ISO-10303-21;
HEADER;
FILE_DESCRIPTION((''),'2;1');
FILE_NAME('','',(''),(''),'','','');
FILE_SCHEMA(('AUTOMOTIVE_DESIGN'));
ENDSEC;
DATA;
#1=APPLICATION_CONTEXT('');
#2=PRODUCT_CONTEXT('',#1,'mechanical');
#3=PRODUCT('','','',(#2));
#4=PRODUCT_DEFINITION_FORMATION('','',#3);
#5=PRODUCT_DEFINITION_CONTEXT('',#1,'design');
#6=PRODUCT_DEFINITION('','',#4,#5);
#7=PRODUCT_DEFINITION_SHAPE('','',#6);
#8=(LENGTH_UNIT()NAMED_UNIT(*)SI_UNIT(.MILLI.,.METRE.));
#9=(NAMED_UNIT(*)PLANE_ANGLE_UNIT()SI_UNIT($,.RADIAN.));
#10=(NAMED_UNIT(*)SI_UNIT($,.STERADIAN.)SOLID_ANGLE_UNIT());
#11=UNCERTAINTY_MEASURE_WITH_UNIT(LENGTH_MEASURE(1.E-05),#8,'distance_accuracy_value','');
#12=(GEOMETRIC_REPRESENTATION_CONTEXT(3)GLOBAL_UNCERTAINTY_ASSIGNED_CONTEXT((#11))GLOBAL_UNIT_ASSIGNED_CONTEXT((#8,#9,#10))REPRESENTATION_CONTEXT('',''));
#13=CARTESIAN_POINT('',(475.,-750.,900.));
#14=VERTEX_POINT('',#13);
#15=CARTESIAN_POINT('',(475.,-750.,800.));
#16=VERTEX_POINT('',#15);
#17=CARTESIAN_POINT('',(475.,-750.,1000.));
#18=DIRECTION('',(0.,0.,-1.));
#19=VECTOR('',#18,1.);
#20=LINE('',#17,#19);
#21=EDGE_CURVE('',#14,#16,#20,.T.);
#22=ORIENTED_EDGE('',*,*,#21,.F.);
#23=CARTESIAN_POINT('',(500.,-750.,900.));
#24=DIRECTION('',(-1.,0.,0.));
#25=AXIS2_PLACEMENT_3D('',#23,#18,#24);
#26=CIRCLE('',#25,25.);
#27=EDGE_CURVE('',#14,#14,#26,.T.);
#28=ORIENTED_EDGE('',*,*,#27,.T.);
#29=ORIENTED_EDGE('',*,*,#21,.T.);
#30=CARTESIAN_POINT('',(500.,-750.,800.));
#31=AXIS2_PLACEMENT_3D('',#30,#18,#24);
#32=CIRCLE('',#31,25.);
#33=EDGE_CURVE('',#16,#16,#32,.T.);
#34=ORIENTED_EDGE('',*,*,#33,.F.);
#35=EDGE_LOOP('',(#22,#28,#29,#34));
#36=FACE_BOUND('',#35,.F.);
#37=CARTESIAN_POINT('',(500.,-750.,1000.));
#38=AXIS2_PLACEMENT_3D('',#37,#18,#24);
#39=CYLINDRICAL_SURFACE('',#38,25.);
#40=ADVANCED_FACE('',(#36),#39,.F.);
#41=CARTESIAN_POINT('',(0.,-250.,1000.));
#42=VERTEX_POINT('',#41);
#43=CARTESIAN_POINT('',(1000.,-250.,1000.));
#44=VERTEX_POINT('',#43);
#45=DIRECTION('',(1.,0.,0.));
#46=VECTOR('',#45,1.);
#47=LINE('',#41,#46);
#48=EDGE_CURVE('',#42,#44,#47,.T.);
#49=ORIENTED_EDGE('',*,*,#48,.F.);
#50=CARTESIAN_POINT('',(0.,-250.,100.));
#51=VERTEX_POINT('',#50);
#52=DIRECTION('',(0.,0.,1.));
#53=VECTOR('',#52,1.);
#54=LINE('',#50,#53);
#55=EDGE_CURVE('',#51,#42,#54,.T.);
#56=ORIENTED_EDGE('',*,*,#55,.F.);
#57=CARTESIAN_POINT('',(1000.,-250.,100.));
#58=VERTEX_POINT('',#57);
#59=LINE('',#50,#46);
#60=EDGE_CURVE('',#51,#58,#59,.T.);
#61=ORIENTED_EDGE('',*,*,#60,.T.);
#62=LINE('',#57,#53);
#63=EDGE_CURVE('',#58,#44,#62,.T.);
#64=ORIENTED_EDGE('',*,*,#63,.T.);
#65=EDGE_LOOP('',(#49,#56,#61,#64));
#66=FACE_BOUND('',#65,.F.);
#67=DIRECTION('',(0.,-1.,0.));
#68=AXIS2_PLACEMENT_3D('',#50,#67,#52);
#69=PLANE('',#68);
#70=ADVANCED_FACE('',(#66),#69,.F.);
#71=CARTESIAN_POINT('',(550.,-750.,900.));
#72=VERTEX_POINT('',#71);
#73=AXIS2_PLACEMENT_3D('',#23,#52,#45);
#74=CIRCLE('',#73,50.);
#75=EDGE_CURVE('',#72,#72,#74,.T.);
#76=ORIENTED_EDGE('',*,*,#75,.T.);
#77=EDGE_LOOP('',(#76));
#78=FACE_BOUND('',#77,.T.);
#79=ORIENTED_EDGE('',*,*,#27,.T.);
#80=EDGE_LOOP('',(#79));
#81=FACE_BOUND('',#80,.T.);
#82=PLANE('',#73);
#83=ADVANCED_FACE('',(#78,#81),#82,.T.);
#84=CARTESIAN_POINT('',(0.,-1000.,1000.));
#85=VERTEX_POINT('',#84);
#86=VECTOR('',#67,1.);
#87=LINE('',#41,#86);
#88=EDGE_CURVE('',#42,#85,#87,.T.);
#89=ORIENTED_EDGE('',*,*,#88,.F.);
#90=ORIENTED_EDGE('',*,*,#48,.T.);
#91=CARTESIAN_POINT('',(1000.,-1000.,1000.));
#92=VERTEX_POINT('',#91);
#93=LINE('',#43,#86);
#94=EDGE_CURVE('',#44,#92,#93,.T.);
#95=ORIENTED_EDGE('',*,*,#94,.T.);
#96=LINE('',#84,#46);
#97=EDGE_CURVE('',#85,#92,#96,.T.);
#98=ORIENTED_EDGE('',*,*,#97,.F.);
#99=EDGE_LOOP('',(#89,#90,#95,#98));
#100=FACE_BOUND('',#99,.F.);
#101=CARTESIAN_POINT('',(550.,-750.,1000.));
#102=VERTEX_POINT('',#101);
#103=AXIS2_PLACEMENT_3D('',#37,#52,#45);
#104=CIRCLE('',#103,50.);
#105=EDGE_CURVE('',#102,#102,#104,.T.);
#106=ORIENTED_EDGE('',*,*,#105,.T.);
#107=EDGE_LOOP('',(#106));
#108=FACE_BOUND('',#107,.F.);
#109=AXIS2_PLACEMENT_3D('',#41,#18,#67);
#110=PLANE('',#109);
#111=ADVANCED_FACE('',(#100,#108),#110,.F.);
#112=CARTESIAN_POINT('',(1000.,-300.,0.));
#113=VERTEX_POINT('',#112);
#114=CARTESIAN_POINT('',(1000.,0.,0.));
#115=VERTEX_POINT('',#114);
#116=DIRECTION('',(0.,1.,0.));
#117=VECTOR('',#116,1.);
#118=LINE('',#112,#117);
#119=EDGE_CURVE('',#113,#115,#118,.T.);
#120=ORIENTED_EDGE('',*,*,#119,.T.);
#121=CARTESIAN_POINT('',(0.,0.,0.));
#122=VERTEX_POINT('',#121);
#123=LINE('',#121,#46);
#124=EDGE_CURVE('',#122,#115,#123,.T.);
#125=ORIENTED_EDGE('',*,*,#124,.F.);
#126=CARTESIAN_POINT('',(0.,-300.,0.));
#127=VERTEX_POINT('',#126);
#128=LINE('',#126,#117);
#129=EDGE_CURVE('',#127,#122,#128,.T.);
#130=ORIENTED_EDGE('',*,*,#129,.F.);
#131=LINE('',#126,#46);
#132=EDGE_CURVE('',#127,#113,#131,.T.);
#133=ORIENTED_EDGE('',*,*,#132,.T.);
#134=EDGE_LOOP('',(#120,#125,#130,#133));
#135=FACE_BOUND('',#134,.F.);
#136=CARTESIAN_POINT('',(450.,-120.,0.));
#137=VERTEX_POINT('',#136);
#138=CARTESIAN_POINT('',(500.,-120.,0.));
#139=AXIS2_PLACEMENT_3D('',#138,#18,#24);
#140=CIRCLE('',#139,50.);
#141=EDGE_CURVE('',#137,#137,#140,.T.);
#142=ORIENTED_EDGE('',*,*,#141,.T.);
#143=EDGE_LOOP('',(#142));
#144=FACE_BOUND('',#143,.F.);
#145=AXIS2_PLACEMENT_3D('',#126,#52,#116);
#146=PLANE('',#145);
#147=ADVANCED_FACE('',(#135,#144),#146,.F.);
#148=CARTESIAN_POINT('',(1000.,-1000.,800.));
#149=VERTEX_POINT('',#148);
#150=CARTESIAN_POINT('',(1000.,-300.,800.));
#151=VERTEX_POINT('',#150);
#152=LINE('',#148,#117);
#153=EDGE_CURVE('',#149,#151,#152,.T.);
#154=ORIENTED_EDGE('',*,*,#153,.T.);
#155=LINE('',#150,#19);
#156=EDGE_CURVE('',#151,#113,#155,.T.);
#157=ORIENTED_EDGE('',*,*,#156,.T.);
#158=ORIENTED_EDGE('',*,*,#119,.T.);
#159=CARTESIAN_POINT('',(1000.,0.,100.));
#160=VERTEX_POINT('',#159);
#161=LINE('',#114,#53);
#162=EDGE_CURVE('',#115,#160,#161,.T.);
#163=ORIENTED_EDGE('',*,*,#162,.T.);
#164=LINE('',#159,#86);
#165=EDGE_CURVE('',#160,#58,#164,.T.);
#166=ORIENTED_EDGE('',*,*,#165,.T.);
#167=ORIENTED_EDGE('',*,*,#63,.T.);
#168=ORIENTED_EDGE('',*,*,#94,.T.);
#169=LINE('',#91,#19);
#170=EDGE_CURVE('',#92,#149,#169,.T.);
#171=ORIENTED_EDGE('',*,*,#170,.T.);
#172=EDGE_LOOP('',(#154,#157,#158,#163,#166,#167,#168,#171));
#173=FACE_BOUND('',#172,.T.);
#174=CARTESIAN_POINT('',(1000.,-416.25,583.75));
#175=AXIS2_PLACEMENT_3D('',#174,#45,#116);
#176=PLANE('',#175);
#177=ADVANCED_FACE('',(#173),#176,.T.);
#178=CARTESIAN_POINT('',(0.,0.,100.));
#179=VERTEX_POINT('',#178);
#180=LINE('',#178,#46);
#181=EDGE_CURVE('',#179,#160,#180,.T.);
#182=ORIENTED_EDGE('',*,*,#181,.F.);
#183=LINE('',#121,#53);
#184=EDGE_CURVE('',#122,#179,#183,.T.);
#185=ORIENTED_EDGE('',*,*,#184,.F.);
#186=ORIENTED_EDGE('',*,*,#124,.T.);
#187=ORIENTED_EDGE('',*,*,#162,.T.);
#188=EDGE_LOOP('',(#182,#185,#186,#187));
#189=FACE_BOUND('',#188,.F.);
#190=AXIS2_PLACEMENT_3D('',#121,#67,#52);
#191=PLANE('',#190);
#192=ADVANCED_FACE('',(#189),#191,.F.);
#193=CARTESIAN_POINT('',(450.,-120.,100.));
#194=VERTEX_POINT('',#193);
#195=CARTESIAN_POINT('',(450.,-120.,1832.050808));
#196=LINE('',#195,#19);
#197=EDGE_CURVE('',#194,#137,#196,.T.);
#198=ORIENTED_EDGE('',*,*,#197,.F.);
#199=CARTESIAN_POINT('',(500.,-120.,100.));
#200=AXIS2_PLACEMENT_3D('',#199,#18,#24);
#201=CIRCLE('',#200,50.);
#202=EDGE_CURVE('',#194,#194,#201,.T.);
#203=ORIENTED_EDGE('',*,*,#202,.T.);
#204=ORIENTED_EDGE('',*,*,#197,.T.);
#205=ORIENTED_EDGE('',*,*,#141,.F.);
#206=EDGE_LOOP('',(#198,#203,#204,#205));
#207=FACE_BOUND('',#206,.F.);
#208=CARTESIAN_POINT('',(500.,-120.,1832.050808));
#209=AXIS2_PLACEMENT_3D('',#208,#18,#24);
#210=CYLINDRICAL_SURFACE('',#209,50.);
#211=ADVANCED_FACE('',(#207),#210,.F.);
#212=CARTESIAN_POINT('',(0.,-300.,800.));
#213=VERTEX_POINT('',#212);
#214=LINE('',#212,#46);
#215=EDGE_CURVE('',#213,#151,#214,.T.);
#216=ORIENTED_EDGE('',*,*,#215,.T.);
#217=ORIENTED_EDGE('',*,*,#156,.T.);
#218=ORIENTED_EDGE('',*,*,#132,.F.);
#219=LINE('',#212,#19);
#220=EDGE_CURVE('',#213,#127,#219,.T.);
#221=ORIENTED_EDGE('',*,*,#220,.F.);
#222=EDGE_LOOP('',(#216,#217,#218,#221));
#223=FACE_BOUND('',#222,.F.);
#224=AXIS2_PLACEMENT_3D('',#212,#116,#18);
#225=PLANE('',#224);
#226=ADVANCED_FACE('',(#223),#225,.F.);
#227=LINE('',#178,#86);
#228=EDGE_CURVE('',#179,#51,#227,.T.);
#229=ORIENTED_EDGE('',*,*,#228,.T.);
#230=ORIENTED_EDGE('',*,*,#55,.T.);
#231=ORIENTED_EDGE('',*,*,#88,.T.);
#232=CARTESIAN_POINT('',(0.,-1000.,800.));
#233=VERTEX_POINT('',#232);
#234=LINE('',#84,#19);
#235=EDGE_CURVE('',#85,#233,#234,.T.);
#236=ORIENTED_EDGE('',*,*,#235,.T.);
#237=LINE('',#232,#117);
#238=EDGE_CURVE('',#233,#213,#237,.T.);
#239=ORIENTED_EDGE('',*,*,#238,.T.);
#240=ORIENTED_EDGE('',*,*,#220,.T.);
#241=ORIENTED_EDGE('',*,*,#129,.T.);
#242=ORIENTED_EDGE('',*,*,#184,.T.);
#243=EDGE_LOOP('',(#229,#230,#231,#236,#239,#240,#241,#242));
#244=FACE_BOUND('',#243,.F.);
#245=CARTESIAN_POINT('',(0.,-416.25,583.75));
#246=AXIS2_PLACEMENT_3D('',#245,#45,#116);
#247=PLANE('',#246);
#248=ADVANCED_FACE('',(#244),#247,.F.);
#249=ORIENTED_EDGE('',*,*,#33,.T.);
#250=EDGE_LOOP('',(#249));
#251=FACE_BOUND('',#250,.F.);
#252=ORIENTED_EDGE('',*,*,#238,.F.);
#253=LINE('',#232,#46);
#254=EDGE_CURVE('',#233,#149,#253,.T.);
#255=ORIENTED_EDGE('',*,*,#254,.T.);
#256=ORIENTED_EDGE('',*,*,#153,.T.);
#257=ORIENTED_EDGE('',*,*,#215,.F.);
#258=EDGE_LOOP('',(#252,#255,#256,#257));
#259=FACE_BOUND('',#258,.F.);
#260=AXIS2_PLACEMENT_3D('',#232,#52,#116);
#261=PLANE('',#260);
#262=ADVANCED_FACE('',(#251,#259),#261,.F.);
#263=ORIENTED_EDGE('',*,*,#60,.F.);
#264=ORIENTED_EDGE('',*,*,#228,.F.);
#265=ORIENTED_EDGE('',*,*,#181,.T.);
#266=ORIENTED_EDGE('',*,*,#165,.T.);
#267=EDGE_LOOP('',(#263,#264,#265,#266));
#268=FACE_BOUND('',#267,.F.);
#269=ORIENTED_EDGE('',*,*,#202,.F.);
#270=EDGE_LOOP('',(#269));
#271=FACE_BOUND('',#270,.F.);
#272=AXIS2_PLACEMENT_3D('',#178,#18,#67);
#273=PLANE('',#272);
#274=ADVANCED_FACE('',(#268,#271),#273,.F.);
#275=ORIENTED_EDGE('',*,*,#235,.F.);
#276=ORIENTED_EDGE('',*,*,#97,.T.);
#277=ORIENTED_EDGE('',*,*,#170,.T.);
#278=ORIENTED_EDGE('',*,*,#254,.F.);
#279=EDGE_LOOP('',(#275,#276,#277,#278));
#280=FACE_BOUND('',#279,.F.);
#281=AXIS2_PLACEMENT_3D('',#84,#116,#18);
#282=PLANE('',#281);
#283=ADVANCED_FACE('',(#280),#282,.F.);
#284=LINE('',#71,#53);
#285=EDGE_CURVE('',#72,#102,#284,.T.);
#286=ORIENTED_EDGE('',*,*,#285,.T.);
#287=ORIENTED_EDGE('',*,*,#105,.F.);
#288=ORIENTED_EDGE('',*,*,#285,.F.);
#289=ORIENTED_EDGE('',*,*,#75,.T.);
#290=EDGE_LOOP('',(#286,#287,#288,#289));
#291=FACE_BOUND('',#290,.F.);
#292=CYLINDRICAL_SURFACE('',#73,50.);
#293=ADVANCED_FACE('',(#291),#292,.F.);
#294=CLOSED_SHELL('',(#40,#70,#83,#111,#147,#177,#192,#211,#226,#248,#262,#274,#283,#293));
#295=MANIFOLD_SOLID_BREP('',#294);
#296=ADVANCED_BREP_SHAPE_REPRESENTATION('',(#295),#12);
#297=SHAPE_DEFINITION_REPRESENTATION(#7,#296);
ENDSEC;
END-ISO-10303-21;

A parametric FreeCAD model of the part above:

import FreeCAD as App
import Part
import Sketcher
Q = App.Units.Quantity

doc = App.newDocument("Part")
body = doc.addObject("PartDesign::Body", "Body")

sketch1 = body.newObject("Sketcher::SketchObject", "Sketch")
sketch1.AttachmentSupport = (doc.getObject("YZ_Plane"), [""])
sketch1.MapMode = "FlatFace"
sketch1.addGeometry([
    Part.LineSegment(App.Vector(-300, 0, 0), App.Vector(0, 0, 0)),
    Part.LineSegment(App.Vector(0, 0, 0), App.Vector(0, 100, 0)),
    Part.LineSegment(App.Vector(0, 100, 0), App.Vector(-250, 100, 0)),
    Part.LineSegment(App.Vector(-250, 100, 0), App.Vector(-250, 1000, 0)),
    Part.LineSegment(App.Vector(-250, 1000, 0), App.Vector(-1000, 1000, 0)),
    Part.LineSegment(App.Vector(-1000, 1000, 0), App.Vector(-1000, 800, 0)),
    Part.LineSegment(App.Vector(-1000, 800, 0), App.Vector(-300, 800, 0)),
    Part.LineSegment(App.Vector(-300, 800, 0), App.Vector(-300, 0, 0)),
], False)
sketch1.addConstraint([
    Sketcher.Constraint("Coincident", 0, 2, 1, 1),
    Sketcher.Constraint("Coincident", 1, 2, 2, 1),
    Sketcher.Constraint("Coincident", 2, 2, 3, 1),
    Sketcher.Constraint("Coincident", 3, 2, 4, 1),
    Sketcher.Constraint("Coincident", 4, 2, 5, 1),
    Sketcher.Constraint("Coincident", 5, 2, 6, 1),
    Sketcher.Constraint("Coincident", 6, 2, 7, 1),
    Sketcher.Constraint("Coincident", 7, 2, 0, 1),
    Sketcher.Constraint("Horizontal", 0),
    Sketcher.Constraint("Vertical", 1),
    Sketcher.Constraint("Horizontal", 2),
    Sketcher.Constraint("Vertical", 3),
    Sketcher.Constraint("Horizontal", 4),
    Sketcher.Constraint("Vertical", 5),
    Sketcher.Constraint("Horizontal", 6),
    Sketcher.Constraint("Vertical", 7),
    Sketcher.Constraint("Coincident", 0, 2, -1, 1),
    Sketcher.Constraint("DistanceX", 0, 1, 0, 2, Q("300 mm")),
    Sketcher.Constraint("DistanceX", 2, 2, 2, 1, Q("250 mm")),
    Sketcher.Constraint("DistanceX", 4, 2, 4, 1, Q("750 mm")),
    Sketcher.Constraint("DistanceY", 1, 1, 1, 2, Q("100 mm")),
    Sketcher.Constraint("DistanceY", 3, 1, 3, 2, Q("900 mm")),
    Sketcher.Constraint("DistanceY", 5, 2, 5, 1, Q("200 mm")),
])
pad1 = body.newObject("PartDesign::Pad", "Pad")
pad1.Profile = sketch1
pad1.Length = 1000

sketch2 = body.newObject("Sketcher::SketchObject", "Sketch001")
sketch2.AttachmentSupport = (doc.getObject("XY_Plane"), [""])
sketch2.MapMode = "FlatFace"
sketch2.AttachmentOffset = App.Placement(App.Vector(0, 0, 100), App.Rotation())
sketch2.addGeometry(Part.Circle(App.Vector(500, -120, 0), App.Vector(0, 0, 1), 50), False)
sketch2.addConstraint([
    Sketcher.Constraint("Diameter", 0, Q("100 mm")),
    Sketcher.Constraint("DistanceX", -1, 1, 0, 3, Q("500 mm")),
    Sketcher.Constraint("DistanceY", 0, 3, -1, 1, Q("120 mm")),
])
doc.recompute()
hole = body.newObject("PartDesign::Hole", "Hole")
hole.Profile = sketch2
hole.ThreadType = "None"
hole.Diameter = 100
hole.DepthType = "ThroughAll"

sketch3 = body.newObject("Sketcher::SketchObject", "Sketch002")
sketch3.AttachmentSupport = (doc.getObject("XY_Plane"), [""])
sketch3.MapMode = "FlatFace"
sketch3.AttachmentOffset = App.Placement(App.Vector(0, 0, 1000), App.Rotation())
sketch3.addGeometry(Part.Circle(App.Vector(500, -750, 0), App.Vector(0, 0, 1), 25), False)
sketch3.addConstraint([
    Sketcher.Constraint("Diameter", 0, Q("50 mm")),
    Sketcher.Constraint("DistanceX", -1, 1, 0, 3, Q("500 mm")),
    Sketcher.Constraint("DistanceY", 0, 3, -1, 1, Q("750 mm")),
])
doc.recompute()
hole2 = body.newObject("PartDesign::Hole", "Hole001")
hole2.Profile = sketch3
hole2.ThreadType = "None"
hole2.Diameter = 50
hole2.DepthType = "ThroughAll"
hole2.HoleCutType = "Counterbore"
hole2.HoleCutDiameter = 100
hole2.HoleCutDepth = 100

doc.recompute()
